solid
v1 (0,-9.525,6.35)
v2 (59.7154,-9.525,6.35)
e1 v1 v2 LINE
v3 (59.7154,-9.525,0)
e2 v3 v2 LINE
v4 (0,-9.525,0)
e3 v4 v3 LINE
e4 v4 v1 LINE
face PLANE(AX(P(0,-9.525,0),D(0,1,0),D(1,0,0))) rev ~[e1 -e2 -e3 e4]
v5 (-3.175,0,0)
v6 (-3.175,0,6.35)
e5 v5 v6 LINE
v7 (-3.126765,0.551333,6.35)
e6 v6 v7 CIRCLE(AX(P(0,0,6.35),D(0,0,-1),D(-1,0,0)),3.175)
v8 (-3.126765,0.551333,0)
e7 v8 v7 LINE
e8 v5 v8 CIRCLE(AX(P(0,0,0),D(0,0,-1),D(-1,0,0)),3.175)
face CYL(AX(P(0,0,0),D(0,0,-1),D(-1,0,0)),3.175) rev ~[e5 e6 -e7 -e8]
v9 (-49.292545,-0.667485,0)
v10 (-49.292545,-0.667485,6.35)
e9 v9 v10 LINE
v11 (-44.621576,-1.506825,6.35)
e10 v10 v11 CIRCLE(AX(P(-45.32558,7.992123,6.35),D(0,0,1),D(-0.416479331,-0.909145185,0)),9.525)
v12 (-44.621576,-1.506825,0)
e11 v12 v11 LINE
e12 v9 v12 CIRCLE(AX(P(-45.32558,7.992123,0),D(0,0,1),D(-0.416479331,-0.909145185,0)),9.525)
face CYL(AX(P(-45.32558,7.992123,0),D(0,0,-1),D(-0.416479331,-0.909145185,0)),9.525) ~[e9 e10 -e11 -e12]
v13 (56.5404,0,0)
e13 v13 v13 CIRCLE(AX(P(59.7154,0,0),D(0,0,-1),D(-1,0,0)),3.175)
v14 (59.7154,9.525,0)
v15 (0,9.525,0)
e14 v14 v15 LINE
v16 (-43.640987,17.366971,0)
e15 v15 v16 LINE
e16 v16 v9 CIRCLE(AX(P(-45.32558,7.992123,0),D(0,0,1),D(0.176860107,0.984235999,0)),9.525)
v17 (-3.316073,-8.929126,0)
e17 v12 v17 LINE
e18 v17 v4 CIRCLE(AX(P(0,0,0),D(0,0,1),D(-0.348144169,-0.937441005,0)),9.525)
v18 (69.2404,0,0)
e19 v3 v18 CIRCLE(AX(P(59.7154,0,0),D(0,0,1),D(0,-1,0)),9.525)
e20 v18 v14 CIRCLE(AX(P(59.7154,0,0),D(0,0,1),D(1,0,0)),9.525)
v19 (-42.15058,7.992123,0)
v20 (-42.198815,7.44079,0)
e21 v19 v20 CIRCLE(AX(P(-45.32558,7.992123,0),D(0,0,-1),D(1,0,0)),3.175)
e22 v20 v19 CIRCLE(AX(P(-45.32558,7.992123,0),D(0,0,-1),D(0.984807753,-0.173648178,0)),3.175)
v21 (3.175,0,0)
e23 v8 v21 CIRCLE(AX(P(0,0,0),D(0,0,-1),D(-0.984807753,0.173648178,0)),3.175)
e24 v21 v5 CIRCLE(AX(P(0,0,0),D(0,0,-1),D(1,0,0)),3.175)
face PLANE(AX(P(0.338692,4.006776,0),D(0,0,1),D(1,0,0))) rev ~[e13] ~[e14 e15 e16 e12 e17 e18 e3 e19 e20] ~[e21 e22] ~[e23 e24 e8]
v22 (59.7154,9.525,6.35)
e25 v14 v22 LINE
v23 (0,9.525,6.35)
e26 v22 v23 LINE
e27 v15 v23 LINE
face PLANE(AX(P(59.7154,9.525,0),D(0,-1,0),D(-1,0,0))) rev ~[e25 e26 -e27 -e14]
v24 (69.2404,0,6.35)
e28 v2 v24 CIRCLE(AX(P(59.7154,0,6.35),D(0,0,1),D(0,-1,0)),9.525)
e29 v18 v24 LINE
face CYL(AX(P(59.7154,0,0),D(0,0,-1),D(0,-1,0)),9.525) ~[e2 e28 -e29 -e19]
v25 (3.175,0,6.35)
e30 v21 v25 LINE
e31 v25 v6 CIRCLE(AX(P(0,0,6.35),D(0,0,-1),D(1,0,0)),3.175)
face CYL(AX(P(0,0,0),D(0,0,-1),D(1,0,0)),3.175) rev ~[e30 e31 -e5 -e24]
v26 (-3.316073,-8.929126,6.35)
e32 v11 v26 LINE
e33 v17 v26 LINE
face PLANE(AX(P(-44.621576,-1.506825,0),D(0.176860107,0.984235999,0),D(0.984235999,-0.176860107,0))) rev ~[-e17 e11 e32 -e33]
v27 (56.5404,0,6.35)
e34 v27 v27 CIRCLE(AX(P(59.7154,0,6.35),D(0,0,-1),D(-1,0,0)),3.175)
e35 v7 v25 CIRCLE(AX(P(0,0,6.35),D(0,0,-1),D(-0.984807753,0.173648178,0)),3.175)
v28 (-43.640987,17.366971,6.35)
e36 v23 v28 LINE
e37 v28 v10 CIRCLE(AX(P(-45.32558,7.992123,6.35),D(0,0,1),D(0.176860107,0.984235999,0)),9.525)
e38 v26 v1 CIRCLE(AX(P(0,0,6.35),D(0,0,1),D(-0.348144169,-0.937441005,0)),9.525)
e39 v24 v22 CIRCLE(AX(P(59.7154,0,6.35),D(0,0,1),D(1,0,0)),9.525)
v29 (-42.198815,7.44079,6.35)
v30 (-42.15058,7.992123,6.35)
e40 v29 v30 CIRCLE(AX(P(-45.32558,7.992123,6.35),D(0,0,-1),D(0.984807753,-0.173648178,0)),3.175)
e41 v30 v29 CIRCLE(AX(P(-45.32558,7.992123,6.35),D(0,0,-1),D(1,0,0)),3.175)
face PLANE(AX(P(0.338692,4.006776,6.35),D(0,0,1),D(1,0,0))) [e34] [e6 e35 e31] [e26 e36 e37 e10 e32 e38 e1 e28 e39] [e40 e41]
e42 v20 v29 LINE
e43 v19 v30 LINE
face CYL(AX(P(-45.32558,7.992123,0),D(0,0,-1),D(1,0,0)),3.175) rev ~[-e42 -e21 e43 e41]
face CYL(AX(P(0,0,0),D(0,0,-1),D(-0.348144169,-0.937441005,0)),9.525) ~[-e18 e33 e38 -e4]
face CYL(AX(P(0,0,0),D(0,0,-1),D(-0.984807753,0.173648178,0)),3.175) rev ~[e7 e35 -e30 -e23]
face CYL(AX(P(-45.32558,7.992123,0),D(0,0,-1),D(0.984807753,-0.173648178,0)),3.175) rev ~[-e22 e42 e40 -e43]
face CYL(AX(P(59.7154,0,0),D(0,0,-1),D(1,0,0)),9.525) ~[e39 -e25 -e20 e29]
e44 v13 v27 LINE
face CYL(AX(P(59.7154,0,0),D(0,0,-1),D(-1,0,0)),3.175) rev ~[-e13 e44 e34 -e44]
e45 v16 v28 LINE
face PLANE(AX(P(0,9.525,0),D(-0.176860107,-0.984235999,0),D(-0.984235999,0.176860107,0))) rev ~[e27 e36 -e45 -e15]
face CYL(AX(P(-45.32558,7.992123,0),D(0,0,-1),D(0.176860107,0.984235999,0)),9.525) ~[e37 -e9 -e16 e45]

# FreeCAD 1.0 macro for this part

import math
import FreeCAD as App
import Part
import Sketcher
Q = App.Units.Quantity

doc = App.newDocument("Part")
params = doc.addObject("Spreadsheet::Sheet", "Params")
for row, (alias, value) in enumerate([
    ("sketch1_diameter", "0.25 in"),
    ("sketch1_radius", "0.375 in"),
    ("sketch1_width", "2.351 in"),
    ("pad1_length", "0.25 in"),
], start=1):
    params.set(f"A{row}", alias)
    params.set(f"B{row}", "=" + value)
    params.setAlias(f"B{row}", alias)

body = doc.addObject("PartDesign::Body", "Body")

sketch1 = body.newObject("Sketcher::SketchObject", "Sketch")
sketch1.AttachmentSupport = (doc.getObject("XY_Plane"), [""])
sketch1.MapMode = "FlatFace"
sketch1.addGeometry([
    Part.LineSegment(App.Vector(-44.621576, -1.506825, 0), App.Vector(-3.316073, -8.929126, 0)),
    Part.ArcOfCircle(Part.Circle(App.Vector(0, 0, 0), App.Vector(0, 0, 1), 9.525), math.radians(-110.373846), math.radians(-90)),
    Part.LineSegment(App.Vector(0, -9.525, 0), App.Vector(59.7154, -9.525, 0)),
    Part.ArcOfCircle(Part.Circle(App.Vector(59.7154, 0, 0), App.Vector(0, 0, 1), 9.525), math.radians(-90), math.radians(0)),
    Part.ArcOfCircle(Part.Circle(App.Vector(59.7154, 0, 0), App.Vector(0, 0, 1), 9.525), math.radians(0), math.radians(90)),
    Part.LineSegment(App.Vector(59.7154, 9.525, 0), App.Vector(0, 9.525, 0)),
    Part.LineSegment(App.Vector(0, 9.525, 0), App.Vector(-43.640987, 17.366971, 0)),
    Part.ArcOfCircle(Part.Circle(App.Vector(-45.32558, 7.992123, 0), App.Vector(0, 0, 1), 9.525), math.radians(79.813077), math.radians(245.387488)),
    Part.ArcOfCircle(Part.Circle(App.Vector(-45.32558, 7.992123, 0), App.Vector(0, 0, 1), 9.525), math.radians(-114.612512), math.radians(-85.761335)),
    Part.ArcOfCircle(Part.Circle(App.Vector(0, 0, 0), App.Vector(0, 0, 1), 3.175), math.radians(0), math.radians(170)),
    Part.ArcOfCircle(Part.Circle(App.Vector(0, 0, 0), App.Vector(0, 0, 1), 3.175), math.radians(180), math.radians(360)),
    Part.ArcOfCircle(Part.Circle(App.Vector(0, 0, 0), App.Vector(0, 0, 1), 3.175), math.radians(170), math.radians(180)),
    Part.Circle(App.Vector(59.7154, 0, 0), App.Vector(0, 0, 1), 3.175),
    Part.ArcOfCircle(Part.Circle(App.Vector(-45.32558, 7.992123, 0), App.Vector(0, 0, 1), 3.175), math.radians(0), math.radians(350)),
    Part.ArcOfCircle(Part.Circle(App.Vector(-45.32558, 7.992123, 0), App.Vector(0, 0, 1), 3.175), math.radians(-10), math.radians(0)),
], False)
sketch1.addConstraint([
    Sketcher.Constraint("Coincident", 0, 2, 1, 1),
    Sketcher.Constraint("Tangent", 1, 2, 2, 1),
    Sketcher.Constraint("Tangent", 2, 2, 3, 1),
    Sketcher.Constraint("Tangent", 3, 2, 4, 1),
    Sketcher.Constraint("Tangent", 4, 2, 5, 1),
    Sketcher.Constraint("Coincident", 5, 2, 6, 1),
    Sketcher.Constraint("Tangent", 6, 2, 7, 1),
    Sketcher.Constraint("Tangent", 7, 2, 8, 1),
    Sketcher.Constraint("Coincident", 8, 2, 0, 1),
    Sketcher.Constraint("Tangent", 9, 1, 10, 2),
    Sketcher.Constraint("Tangent", 10, 1, 11, 2),
    Sketcher.Constraint("Tangent", 11, 1, 9, 2),
    Sketcher.Constraint("Tangent", 13, 1, 14, 2),
    Sketcher.Constraint("Coincident", 14, 1, 13, 2),
    Sketcher.Constraint("Horizontal", 2),
    Sketcher.Constraint("Horizontal", 5),
    Sketcher.Constraint("Coincident", 1, 3, -1, 1),
    Sketcher.Constraint("Coincident", 9, 3, -1, 1),
    Sketcher.Constraint("Coincident", 12, 3, 3, 3),
    Sketcher.Constraint("Coincident", 13, 3, 7, 3),
    Sketcher.Constraint("Equal", 1, 3),
    Sketcher.Constraint("Equal", 3, 4),
    Sketcher.Constraint("Equal", 4, 7),
    Sketcher.Constraint("Equal", 7, 8),
    Sketcher.Constraint("Equal", 11, 12),
    Sketcher.Constraint("Equal", 12, 13),
    Sketcher.Constraint("PointOnObject", 3, 2, -1),
    Sketcher.Constraint("PointOnObject", 5, 2, -2),
    Sketcher.Constraint("PointOnObject", 9, 1, -1),
    Sketcher.Constraint("PointOnObject", 10, 1, -1),
    Sketcher.Constraint("Parallel", 0, 6),
    Sketcher.Constraint("Horizontal", 14, 3, 13, 1),
    Sketcher.Constraint("Diameter", 12, Q("0.25 in")),
    Sketcher.Constraint("Radius", 1, Q("0.375 in")),
    Sketcher.Constraint("DistanceX", 2, 1, 2, 2, Q("2.351 in")),
    Sketcher.Constraint("Distance", 0, Q("41.967071 mm")),
    Sketcher.Constraint("DistanceX", 7, 3, -1, 1, Q("45.32558 mm")),
    Sketcher.Constraint("DistanceY", -1, 1, 6, 2, Q("17.366971 mm")),
    Sketcher.Constraint("DistanceY", -1, 1, 14, 1, Q("7.44079 mm")),
    Sketcher.Constraint("DistanceX", 7, 2, 6, 2, Q("5.651558 mm")),
    Sketcher.Constraint("DistanceX", 11, 1, -1, 1, Q("3.126765 mm")),
])
sketch1.setExpression("Constraints[32]", "Params.sketch1_diameter")
sketch1.setExpression("Constraints[33]", "Params.sketch1_radius")
sketch1.setExpression("Constraints[34]", "Params.sketch1_width")
pad1 = body.newObject("PartDesign::Pad", "Pad")
pad1.Profile = sketch1
pad1.setExpression("Length", "Params.pad1_length")

doc.recompute()
